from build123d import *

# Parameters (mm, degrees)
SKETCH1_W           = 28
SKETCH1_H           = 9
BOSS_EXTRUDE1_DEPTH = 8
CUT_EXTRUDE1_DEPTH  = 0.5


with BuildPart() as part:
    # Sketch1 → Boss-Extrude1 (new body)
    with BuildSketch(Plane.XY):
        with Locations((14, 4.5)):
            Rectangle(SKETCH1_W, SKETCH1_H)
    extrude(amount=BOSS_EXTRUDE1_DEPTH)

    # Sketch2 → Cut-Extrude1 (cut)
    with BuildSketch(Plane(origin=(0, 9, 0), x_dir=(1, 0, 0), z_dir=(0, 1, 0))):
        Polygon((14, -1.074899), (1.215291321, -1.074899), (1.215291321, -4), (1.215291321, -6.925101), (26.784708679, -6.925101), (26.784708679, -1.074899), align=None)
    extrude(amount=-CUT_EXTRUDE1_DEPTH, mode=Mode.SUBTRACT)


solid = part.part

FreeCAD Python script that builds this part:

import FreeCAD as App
import Part
import Sketcher

V = App.Vector
Q = App.Units.Quantity


def add_polygon(sketch, points):
    """Adds a closed chain of lines whose ends are joined by coincident constraints."""
    first, n = sketch.GeometryCount, len(points)
    for a, b in zip(points, points[1:] + points[:1]):
        sketch.addGeometry(Part.LineSegment(App.Vector(*a, 0), App.Vector(*b, 0)), False)
    for i in range(n):
        sketch.addConstraint(Sketcher.Constraint("Coincident", first + i, 2, first + (i + 1) % n, 1))

doc = App.newDocument("Part")
body = doc.addObject("PartDesign::Body", "Body")

# Sketch on XY plane
sketch1 = body.newObject("Sketcher::SketchObject", "Sketch")
sketch1.AttachmentSupport = (doc.getObject("XY_Plane"), [""])
sketch1.MapMode = "FlatFace"
add_polygon(sketch1, [(0, 9), (0, 0), (28, 0), (28, 9)])  # lines 0-3
sketch1.addConstraint([
    Sketcher.Constraint("Vertical", 0),
    Sketcher.Constraint("Horizontal", 1),
    Sketcher.Constraint("Vertical", 2),
    Sketcher.Constraint("Horizontal", 3),
    Sketcher.Constraint("Coincident", 0, 2, -1, 1),
    Sketcher.Constraint("DistanceX", 1, 1, 1, 2, Q("28 mm")),
    Sketcher.Constraint("DistanceY", 0, 2, 0, 1, Q("9 mm")),
])
pad1 = body.newObject("PartDesign::Pad", "Pad")
pad1.Profile = sketch1
pad1.Length = 8

# Sketch on XZ plane
sketch2 = body.newObject("Sketcher::SketchObject", "Sketch001")
sketch2.AttachmentSupport = (doc.getObject("XZ_Plane"), [""])
sketch2.MapMode = "FlatFace"
sketch2.AttachmentOffset = App.Placement(V(0, 0, -9), App.Rotation())
add_polygon(sketch2, [(1, 1), (1, 7), (27, 7), (27, 1)])  # lines 0-3
sketch2.addConstraint([
    Sketcher.Constraint("Vertical", 0),
    Sketcher.Constraint("Horizontal", 1),
    Sketcher.Constraint("Vertical", 2),
    Sketcher.Constraint("Horizontal", 3),
    Sketcher.Constraint("DistanceY", 0, 1, 0, 2, Q("5.850202 mm")),
    Sketcher.Constraint("DistanceY", -1, 1, 0, 2, Q("6.925101 mm")),
    Sketcher.Constraint("DistanceX", 1, 1, 1, 2, Q("25.569417 mm")),
    Sketcher.Constraint("DistanceX", -1, 1, 0, 2, Q("1.215291 mm")),
])
pocket1 = body.newObject("PartDesign::Pocket", "Pocket")
pocket1.Profile = sketch2
pocket1.Length = 0.5
pocket1.Reversed = True

doc.recompute()
